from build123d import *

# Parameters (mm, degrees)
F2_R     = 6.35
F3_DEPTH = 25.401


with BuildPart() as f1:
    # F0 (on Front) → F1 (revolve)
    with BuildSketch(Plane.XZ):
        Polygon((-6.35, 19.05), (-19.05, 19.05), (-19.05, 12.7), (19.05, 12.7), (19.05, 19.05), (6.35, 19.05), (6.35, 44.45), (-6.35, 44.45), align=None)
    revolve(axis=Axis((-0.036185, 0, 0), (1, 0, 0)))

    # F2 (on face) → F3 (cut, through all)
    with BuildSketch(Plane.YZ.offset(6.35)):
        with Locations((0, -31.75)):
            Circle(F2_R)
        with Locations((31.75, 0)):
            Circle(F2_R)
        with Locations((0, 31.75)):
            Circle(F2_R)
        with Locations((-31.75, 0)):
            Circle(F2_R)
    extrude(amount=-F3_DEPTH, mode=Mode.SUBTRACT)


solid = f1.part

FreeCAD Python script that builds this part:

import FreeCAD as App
import Part
import Sketcher
Q = App.Units.Quantity

doc = App.newDocument("Part")
body = doc.addObject("PartDesign::Body", "Body")

sketch1 = body.newObject("Sketcher::SketchObject", "Sketch")
sketch1.AttachmentSupport = (doc.getObject("XZ_Plane"), [""])
sketch1.MapMode = "FlatFace"
sketch1.addGeometry([
    Part.LineSegment(App.Vector(-6, 19, 0), App.Vector(-19, 19, 0)),
    Part.LineSegment(App.Vector(-19, 19, 0), App.Vector(-19, 13, 0)),
    Part.LineSegment(App.Vector(-19, 13, 0), App.Vector(19, 13, 0)),
    Part.LineSegment(App.Vector(19, 13, 0), App.Vector(19, 19, 0)),
    Part.LineSegment(App.Vector(19, 19, 0), App.Vector(6, 19, 0)),
    Part.LineSegment(App.Vector(6, 19, 0), App.Vector(6, 44, 0)),
    Part.LineSegment(App.Vector(6, 44, 0), App.Vector(-6, 44, 0)),
    Part.LineSegment(App.Vector(-6, 44, 0), App.Vector(-6, 19, 0)),
], False)
sketch1.addConstraint([
    Sketcher.Constraint("Coincident", 0, 2, 1, 1),
    Sketcher.Constraint("Coincident", 1, 2, 2, 1),
    Sketcher.Constraint("Coincident", 2, 2, 3, 1),
    Sketcher.Constraint("Coincident", 3, 2, 4, 1),
    Sketcher.Constraint("Coincident", 4, 2, 5, 1),
    Sketcher.Constraint("Coincident", 5, 2, 6, 1),
    Sketcher.Constraint("Coincident", 6, 2, 7, 1),
    Sketcher.Constraint("Coincident", 7, 2, 0, 1),
    Sketcher.Constraint("Horizontal", 0),
    Sketcher.Constraint("Vertical", 1),
    Sketcher.Constraint("Horizontal", 2),
    Sketcher.Constraint("Vertical", 3),
    Sketcher.Constraint("Horizontal", 4),
    Sketcher.Constraint("Vertical", 5),
    Sketcher.Constraint("Horizontal", 6),
    Sketcher.Constraint("Vertical", 7),
    Sketcher.Constraint("Symmetric", 0, 2, 3, 2, -2),
    Sketcher.Constraint("Equal", 0, 4),
    Sketcher.Constraint("Equal", 4, 6),
    Sketcher.Constraint("DistanceY", 5, 1, 5, 2, Q("1 in")),
    Sketcher.Constraint("DistanceX", 0, 2, 0, 1, Q("0.5 in")),
    Sketcher.Constraint("DistanceY", 1, 2, 1, 1, Q("0.25 in")),
    Sketcher.Constraint("DistanceY", -1, 1, 1, 2, Q("0.5 in")),
])
revolution = body.newObject("PartDesign::Revolution", "Revolution")
revolution.Profile = sketch1
revolution.ReferenceAxis = (sketch1, ["H_Axis"])
revolution.Angle = 360

sketch2 = body.newObject("Sketcher::SketchObject", "Sketch001")
sketch2.AttachmentSupport = (doc.getObject("YZ_Plane"), [""])
sketch2.MapMode = "FlatFace"
sketch2.AttachmentOffset = App.Placement(App.Vector(0, 0, 0.25 * 25.4), App.Rotation())
sketch2.addGeometry([
    Part.Circle(App.Vector(0, -32, 0), App.Vector(0, 0, 1), 6),
    Part.Circle(App.Vector(32, 0, 0), App.Vector(0, 0, 1), 6),
    Part.Circle(App.Vector(0, 32, 0), App.Vector(0, 0, 1), 6),
    Part.Circle(App.Vector(-32, 0, 0), App.Vector(0, 0, 1), 6),
], False)
sketch2.addConstraint([
    Sketcher.Constraint("Equal", 0, 1),
    Sketcher.Constraint("Equal", 1, 2),
    Sketcher.Constraint("Equal", 2, 3),
    Sketcher.Constraint("Symmetric", 0, 3, 2, 3, -1, 1),
    Sketcher.Constraint("Symmetric", 1, 3, 3, 3, -1, 1),
    Sketcher.Constraint("PointOnObject", 0, 3, -2),
    Sketcher.Constraint("PointOnObject", 1, 3, -1),
    Sketcher.Constraint("Diameter", 0, Q("0.5 in")),
    Sketcher.Constraint("DistanceY", 0, 3, 2, 3, Q("2.5 in")),
    Sketcher.Constraint("DistanceX", 3, 3, 1, 3, Q("2.5 in")),
])
pocket1 = body.newObject("PartDesign::Pocket", "Pocket")
pocket1.Profile = sketch2
pocket1.Type = "ThroughAll"

doc.recompute()
